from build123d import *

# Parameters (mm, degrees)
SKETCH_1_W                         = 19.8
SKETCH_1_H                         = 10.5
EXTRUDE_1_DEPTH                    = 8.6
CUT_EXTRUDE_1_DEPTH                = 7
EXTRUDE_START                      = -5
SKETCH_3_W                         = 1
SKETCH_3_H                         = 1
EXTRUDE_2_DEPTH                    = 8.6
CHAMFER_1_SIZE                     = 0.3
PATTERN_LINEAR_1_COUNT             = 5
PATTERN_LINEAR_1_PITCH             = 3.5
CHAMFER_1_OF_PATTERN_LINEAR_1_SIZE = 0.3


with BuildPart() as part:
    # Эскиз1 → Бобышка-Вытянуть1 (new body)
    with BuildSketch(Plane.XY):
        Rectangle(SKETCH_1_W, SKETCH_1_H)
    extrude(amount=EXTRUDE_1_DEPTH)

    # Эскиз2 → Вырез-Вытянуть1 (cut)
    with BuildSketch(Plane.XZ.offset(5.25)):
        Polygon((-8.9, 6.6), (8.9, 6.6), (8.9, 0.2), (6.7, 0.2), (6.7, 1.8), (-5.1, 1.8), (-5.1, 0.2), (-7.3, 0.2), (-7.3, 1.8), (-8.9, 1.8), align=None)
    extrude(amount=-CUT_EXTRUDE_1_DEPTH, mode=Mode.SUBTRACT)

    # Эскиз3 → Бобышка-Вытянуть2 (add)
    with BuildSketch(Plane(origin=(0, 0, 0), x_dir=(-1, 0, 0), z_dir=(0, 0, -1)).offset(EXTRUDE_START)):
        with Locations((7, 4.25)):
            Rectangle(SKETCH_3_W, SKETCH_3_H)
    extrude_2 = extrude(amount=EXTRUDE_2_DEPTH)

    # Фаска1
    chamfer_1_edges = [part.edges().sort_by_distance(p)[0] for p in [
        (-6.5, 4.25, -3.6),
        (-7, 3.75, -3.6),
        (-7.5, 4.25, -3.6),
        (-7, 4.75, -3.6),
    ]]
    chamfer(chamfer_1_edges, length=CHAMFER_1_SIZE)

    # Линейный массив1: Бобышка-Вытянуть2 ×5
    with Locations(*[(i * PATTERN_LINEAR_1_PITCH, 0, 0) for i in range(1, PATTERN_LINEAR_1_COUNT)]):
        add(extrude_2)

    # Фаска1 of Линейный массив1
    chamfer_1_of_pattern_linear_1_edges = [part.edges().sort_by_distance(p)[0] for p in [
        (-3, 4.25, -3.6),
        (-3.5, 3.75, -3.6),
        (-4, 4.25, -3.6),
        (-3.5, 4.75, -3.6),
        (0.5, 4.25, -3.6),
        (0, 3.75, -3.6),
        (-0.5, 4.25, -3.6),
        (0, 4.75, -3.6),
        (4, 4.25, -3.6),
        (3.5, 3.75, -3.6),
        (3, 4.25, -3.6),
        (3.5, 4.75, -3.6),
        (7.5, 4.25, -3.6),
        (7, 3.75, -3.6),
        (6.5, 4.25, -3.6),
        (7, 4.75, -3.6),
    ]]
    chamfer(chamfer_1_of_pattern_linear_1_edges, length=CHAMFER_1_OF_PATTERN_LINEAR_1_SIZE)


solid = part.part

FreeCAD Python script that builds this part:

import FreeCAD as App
import Part
import Sketcher
from FreeCAD import Vector
Q = App.Units.Quantity


def edges_at(feature, points):
    """Names of the edges that pass closest to the given points."""
    edges = feature.Shape.Edges
    near = lambda p: min(range(len(edges)), key=lambda i: edges[i].distToShape(Part.Vertex(*p))[0])
    return sorted({f"Edge{near(p) + 1}" for p in points})


def add_polygon(sketch, points):
    """Adds a closed chain of lines whose ends are joined by coincident constraints."""
    first, n = sketch.GeometryCount, len(points)
    for a, b in zip(points, points[1:] + points[:1]):
        sketch.addGeometry(Part.LineSegment(App.Vector(*a, 0), App.Vector(*b, 0)), False)
    for i in range(n):
        sketch.addConstraint(Sketcher.Constraint("Coincident", first + i, 2, first + (i + 1) % n, 1))

doc = App.newDocument("Part")
body = doc.addObject("PartDesign::Body", "Body")

sketch1 = body.newObject("Sketcher::SketchObject", "Sketch")
sketch1.AttachmentSupport = (doc.getObject("XY_Plane"), [""])
sketch1.MapMode = "FlatFace"
add_polygon(sketch1, [(-10, 5), (-10, -5), (10, -5), (10, 5)])
sketch1.addConstraint(Sketcher.Constraint("Vertical", 0))
sketch1.addConstraint(Sketcher.Constraint("Horizontal", 1))
sketch1.addConstraint(Sketcher.Constraint("Vertical", 2))
sketch1.addConstraint(Sketcher.Constraint("Horizontal", 3))
sketch1.addConstraint(Sketcher.Constraint("Symmetric", 0, 2, 2, 2, -1, 1))
sketch1.addConstraint(Sketcher.Constraint("DistanceX", 1, 1, 1, 2, Q("19.8 mm")))
sketch1.addConstraint(Sketcher.Constraint("DistanceY", 0, 2, 0, 1, Q("10.5 mm")))
pad1 = body.newObject("PartDesign::Pad", "Pad")
pad1.Profile = sketch1
pad1.Length = 8.6

sketch2 = body.newObject("Sketcher::SketchObject", "Sketch001")
sketch2.AttachmentSupport = (doc.getObject("XZ_Plane"), [""])
sketch2.MapMode = "FlatFace"
sketch2.AttachmentOffset = App.Placement(Vector(0, 0, 5.25), App.Rotation())
add_polygon(sketch2, [(8.9, 6.6), (-8.9, 6.6), (-8.9, 1.8), (-7.3, 1.8), (-7.3, 0.2), (-5.1, 0.2), (-5.1, 1.8), (6.7, 1.8), (6.7, 0.2), (8.9, 0.2)])
sketch2.addConstraint(Sketcher.Constraint("Horizontal", 0))
sketch2.addConstraint(Sketcher.Constraint("Vertical", 1))
sketch2.addConstraint(Sketcher.Constraint("Horizontal", 2))
sketch2.addConstraint(Sketcher.Constraint("Vertical", 3))
sketch2.addConstraint(Sketcher.Constraint("Horizontal", 4))
sketch2.addConstraint(Sketcher.Constraint("Vertical", 5))
sketch2.addConstraint(Sketcher.Constraint("Horizontal", 6))
sketch2.addConstraint(Sketcher.Constraint("Vertical", 7))
sketch2.addConstraint(Sketcher.Constraint("Horizontal", 8))
sketch2.addConstraint(Sketcher.Constraint("Vertical", 9))
sketch2.addConstraint(Sketcher.Constraint("Horizontal", 2, 2, 5, 2))
sketch2.addConstraint(Sketcher.Constraint("Horizontal", 4, 2, 7, 2))
sketch2.addConstraint(Sketcher.Constraint("Equal", 4, 8))
sketch2.addConstraint(Sketcher.Constraint("Equal", 2, 3))
sketch2.addConstraint(Sketcher.Constraint("DistanceX", 0, 2, 0, 1, Q("17.8 mm")))
sketch2.addConstraint(Sketcher.Constraint("DistanceX", 2, 1, 2, 2, Q("1.6 mm")))
sketch2.addConstraint(Sketcher.Constraint("DistanceX", 4, 1, 4, 2, Q("2.2 mm")))
sketch2.addConstraint(Sketcher.Constraint("DistanceY", 1, 2, 1, 1, Q("4.8 mm")))
sketch2.addConstraint(Sketcher.Constraint("DistanceX", 0, 2, -1, 1, Q("8.9 mm")))
sketch2.addConstraint(Sketcher.Constraint("DistanceY", -1, 1, 0, 2, Q("6.6 mm")))
pocket1 = body.newObject("PartDesign::Pocket", "Pocket")
pocket1.Profile = sketch2
pocket1.Length = 7

sketch3 = body.newObject("Sketcher::SketchObject", "Sketch002")
sketch3.AttachmentSupport = (doc.getObject("XY_Plane"), [""])
sketch3.MapMode = "FlatFace"
sketch3.AttachmentOffset = App.Placement(Vector(0, 0, 5), App.Rotation())
add_polygon(sketch3, [(-6.5, 4.8), (-6.5, 3.8), (-7.5, 3.8), (-7.5, 4.8)])
sketch3.addConstraint(Sketcher.Constraint("Vertical", 0))
sketch3.addConstraint(Sketcher.Constraint("Horizontal", 1))
sketch3.addConstraint(Sketcher.Constraint("Vertical", 2))
sketch3.addConstraint(Sketcher.Constraint("Horizontal", 3))
sketch3.addConstraint(Sketcher.Constraint("Equal", 3, 0))
sketch3.addConstraint(Sketcher.Constraint("DistanceX", 1, 2, 1, 1, Q("1 mm")))
sketch3.addConstraint(Sketcher.Constraint("DistanceX", 0, 2, -1, 1, Q("6.5 mm")))
sketch3.addConstraint(Sketcher.Constraint("DistanceY", -1, 1, 0, 2, Q("3.75 mm")))
pad2 = body.newObject("PartDesign::Pad", "Pad001")
pad2.Profile = sketch3
pad2.Length = 8.6
pad2.Reversed = True
doc.recompute()

chamfer = body.newObject("PartDesign::Chamfer", "Chamfer")
chamfer.Base = (pad2, edges_at(pad2, [
    (-6.5, 4.25, -3.6),
    (-7, 3.75, -3.6),
    (-7.5, 4.25, -3.6),
    (-7, 4.75, -3.6),
]))
chamfer.Size = 0.3
doc.recompute()

linearpattern = body.newObject("PartDesign::LinearPattern", "LinearPattern")
linearpattern.Originals = [pad2]
linearpattern.Direction = (doc.getObject("X_Axis"), [""])
linearpattern.Mode = "offset"
linearpattern.Offset = 3.5
linearpattern.Occurrences = 5
body.Tip = linearpattern
doc.recompute()

chamfer2 = body.newObject("PartDesign::Chamfer", "Chamfer001")
chamfer2.Base = (linearpattern, edges_at(linearpattern, [
    (-3, 4.25, -3.6),
    (-3.5, 3.75, -3.6),
    (-4, 4.25, -3.6),
    (-3.5, 4.75, -3.6),
    (0.5, 4.25, -3.6),
    (0, 3.75, -3.6),
    (-0.5, 4.25, -3.6),
    (0, 4.75, -3.6),
    (4, 4.25, -3.6),
    (3.5, 3.75, -3.6),
    (3, 4.25, -3.6),
    (3.5, 4.75, -3.6),
    (7.5, 4.25, -3.6),
    (7, 3.75, -3.6),
    (6.5, 4.25, -3.6),
    (7, 4.75, -3.6),
]))
chamfer2.Size = 0.3

doc.recompute()
